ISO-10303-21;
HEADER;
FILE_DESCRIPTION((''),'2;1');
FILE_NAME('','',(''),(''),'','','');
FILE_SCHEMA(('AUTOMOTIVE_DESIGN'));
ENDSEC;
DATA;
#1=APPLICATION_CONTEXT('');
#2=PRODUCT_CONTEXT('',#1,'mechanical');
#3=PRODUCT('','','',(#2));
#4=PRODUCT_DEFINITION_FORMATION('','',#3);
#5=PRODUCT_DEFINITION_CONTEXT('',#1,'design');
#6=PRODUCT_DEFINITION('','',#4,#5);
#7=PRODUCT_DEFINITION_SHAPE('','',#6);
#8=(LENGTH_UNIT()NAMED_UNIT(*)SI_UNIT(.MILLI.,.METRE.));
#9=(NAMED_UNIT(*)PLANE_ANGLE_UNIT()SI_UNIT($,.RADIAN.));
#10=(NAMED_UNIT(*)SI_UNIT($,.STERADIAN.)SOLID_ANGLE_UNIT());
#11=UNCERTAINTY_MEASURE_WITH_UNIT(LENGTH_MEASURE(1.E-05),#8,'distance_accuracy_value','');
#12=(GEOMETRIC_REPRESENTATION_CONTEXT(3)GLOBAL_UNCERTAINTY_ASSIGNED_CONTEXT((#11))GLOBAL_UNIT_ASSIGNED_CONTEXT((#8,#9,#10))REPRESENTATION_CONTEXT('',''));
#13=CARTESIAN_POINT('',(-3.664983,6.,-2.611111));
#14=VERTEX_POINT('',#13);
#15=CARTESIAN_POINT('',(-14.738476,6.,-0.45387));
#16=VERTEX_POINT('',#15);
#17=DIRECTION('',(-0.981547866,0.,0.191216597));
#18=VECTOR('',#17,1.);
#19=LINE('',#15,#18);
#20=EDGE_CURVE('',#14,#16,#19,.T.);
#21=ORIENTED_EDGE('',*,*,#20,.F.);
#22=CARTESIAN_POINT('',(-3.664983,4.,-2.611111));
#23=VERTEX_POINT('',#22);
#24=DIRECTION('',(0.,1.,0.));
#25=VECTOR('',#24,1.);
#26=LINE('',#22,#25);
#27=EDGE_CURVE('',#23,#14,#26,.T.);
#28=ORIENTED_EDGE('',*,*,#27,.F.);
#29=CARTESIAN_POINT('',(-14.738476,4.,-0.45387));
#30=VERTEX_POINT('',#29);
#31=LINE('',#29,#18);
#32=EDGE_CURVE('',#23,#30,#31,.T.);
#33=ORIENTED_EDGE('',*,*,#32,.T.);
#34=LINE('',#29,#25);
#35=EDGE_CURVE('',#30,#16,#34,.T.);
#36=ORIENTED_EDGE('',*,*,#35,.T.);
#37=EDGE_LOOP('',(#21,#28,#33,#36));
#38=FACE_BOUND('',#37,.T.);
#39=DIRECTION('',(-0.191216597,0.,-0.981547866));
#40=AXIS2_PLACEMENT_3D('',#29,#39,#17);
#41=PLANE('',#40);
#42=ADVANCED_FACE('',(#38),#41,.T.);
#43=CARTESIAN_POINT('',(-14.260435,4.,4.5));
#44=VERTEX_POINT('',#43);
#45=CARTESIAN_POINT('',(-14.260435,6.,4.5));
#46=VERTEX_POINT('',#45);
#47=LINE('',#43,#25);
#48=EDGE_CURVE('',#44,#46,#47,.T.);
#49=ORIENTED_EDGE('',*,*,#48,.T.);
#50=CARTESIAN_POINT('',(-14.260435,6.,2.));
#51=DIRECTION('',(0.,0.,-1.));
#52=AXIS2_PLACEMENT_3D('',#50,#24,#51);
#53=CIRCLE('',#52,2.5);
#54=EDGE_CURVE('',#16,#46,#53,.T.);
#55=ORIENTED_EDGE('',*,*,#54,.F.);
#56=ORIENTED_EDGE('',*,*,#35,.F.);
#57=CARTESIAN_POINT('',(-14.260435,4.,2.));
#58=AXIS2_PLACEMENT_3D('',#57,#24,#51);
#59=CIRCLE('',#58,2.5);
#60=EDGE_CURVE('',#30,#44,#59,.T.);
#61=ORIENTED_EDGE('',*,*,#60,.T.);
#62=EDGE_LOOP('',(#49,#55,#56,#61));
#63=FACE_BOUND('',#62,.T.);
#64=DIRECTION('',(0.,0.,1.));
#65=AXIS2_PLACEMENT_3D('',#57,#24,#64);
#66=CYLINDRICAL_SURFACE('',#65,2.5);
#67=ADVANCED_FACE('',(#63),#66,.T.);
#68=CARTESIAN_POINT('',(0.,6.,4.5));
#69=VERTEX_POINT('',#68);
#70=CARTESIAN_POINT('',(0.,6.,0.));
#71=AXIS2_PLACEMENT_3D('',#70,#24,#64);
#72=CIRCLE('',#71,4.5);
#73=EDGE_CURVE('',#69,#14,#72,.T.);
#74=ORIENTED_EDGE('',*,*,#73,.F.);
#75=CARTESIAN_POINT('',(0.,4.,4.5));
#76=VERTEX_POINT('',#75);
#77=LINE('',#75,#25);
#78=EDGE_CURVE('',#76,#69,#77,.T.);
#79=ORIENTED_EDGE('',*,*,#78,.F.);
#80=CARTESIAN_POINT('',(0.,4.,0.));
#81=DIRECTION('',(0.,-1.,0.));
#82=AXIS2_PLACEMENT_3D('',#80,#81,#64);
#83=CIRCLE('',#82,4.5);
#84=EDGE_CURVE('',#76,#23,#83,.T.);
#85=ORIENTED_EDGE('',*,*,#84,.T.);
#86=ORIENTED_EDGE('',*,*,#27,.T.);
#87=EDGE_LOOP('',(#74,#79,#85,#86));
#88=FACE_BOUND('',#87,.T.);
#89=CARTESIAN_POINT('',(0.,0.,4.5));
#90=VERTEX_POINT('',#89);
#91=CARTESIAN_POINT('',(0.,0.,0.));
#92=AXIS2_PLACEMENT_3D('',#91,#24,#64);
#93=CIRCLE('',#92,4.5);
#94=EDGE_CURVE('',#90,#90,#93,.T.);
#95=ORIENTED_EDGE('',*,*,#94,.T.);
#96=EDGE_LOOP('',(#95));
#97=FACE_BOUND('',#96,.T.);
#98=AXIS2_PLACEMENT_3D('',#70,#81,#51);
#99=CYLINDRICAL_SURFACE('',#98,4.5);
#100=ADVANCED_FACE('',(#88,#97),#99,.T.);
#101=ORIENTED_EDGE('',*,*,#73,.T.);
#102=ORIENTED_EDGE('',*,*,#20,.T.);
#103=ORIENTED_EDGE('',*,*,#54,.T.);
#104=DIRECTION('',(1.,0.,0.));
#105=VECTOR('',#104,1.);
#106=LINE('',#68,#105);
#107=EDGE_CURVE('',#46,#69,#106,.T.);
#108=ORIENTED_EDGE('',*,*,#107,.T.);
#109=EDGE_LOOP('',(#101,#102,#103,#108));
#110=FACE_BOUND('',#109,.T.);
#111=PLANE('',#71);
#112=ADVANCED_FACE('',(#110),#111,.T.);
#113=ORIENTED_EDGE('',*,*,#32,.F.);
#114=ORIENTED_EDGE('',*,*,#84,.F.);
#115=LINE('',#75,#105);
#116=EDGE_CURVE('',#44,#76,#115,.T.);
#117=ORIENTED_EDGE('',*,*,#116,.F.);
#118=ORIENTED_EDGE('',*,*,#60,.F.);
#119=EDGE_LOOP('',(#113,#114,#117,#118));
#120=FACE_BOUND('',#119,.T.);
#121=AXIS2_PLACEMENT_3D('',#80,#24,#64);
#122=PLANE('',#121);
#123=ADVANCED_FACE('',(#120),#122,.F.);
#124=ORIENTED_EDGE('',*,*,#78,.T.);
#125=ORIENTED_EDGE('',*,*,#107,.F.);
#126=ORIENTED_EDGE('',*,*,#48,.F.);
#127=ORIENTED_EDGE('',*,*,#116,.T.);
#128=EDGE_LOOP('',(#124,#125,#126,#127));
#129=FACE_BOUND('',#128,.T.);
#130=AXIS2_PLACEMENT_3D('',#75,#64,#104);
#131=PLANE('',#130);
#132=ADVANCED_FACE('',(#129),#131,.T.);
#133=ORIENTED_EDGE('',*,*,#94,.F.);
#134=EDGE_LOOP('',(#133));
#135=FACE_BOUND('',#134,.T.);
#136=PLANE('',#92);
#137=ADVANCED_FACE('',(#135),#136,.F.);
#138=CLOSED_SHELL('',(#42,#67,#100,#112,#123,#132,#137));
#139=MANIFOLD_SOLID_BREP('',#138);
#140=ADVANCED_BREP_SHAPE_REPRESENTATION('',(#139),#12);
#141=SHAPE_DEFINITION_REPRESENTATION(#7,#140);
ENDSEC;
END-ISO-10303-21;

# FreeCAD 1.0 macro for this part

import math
import FreeCAD as App
import Part
import Sketcher
from FreeCAD import Vector
Q = App.Units.Quantity

doc = App.newDocument("Part")
body = doc.addObject("PartDesign::Body", "Body")

# Sketch on XZ plane
sketch1 = body.newObject("Sketcher::SketchObject", "Sketch")
sketch1.AttachmentSupport = (doc.getObject("XZ_Plane"), [""])
sketch1.MapMode = "FlatFace"
sketch1.addGeometry(Part.Circle(Vector(0, 0, 0), Vector(0, 0, 1), 4.5), False)
sketch1.addConstraint([
    Sketcher.Constraint("Coincident", 0, 3, -1, 1),
    Sketcher.Constraint("Diameter", 0, Q("9 mm")),
])
pad1 = body.newObject("PartDesign::Pad", "Pad")
pad1.Profile = sketch1
pad1.Length = 6
pad1.Reversed = True

# Sketch on XZ plane
sketch2 = body.newObject("Sketcher::SketchObject", "Sketch001")
sketch2.AttachmentSupport = (doc.getObject("XZ_Plane"), [""])
sketch2.MapMode = "FlatFace"
sketch2.AttachmentOffset = App.Placement(Vector(0, 0, -4), App.Rotation())
sketch2.addGeometry([
    Part.LineSegment(Vector(-14.3, 4.5, 0), Vector(0, 4.5, 0)),
    Part.ArcOfCircle(Part.Circle(Vector(0, 0, 0), Vector(0, 0, 1), 4.5), math.radians(90), math.radians(215)),
    Part.LineSegment(Vector(-3.7, -2.6, 0), Vector(-14.7, -0.5, 0)),
    Part.ArcOfCircle(Part.Circle(Vector(-14.3, 2, 0), Vector(0, 0, 1), 2.5), math.radians(90), math.radians(259)),
], False)
sketch2.addConstraint([
    Sketcher.Constraint("Tangent", 0, 2, 1, 1),
    Sketcher.Constraint("Coincident", 1, 2, 2, 1),
    Sketcher.Constraint("Tangent", 2, 2, 3, 2),
    Sketcher.Constraint("Tangent", 3, 1, 0, 1),
    Sketcher.Constraint("Horizontal", 0),
    Sketcher.Constraint("Coincident", 1, 3, -1, 1),
    Sketcher.Constraint("Radius", 1, Q("4.5 mm")),
    Sketcher.Constraint("Radius", 3, Q("2.5 mm")),
    Sketcher.Constraint("DistanceX", 0, 1, 0, 2, Q("14.260435 mm")),
    Sketcher.Constraint("DistanceY", 1, 2, -1, 1, Q("2.611111 mm")),
])
pad2 = body.newObject("PartDesign::Pad", "Pad001")
pad2.Profile = sketch2
pad2.Length = 2
pad2.Reversed = True

doc.recompute()
